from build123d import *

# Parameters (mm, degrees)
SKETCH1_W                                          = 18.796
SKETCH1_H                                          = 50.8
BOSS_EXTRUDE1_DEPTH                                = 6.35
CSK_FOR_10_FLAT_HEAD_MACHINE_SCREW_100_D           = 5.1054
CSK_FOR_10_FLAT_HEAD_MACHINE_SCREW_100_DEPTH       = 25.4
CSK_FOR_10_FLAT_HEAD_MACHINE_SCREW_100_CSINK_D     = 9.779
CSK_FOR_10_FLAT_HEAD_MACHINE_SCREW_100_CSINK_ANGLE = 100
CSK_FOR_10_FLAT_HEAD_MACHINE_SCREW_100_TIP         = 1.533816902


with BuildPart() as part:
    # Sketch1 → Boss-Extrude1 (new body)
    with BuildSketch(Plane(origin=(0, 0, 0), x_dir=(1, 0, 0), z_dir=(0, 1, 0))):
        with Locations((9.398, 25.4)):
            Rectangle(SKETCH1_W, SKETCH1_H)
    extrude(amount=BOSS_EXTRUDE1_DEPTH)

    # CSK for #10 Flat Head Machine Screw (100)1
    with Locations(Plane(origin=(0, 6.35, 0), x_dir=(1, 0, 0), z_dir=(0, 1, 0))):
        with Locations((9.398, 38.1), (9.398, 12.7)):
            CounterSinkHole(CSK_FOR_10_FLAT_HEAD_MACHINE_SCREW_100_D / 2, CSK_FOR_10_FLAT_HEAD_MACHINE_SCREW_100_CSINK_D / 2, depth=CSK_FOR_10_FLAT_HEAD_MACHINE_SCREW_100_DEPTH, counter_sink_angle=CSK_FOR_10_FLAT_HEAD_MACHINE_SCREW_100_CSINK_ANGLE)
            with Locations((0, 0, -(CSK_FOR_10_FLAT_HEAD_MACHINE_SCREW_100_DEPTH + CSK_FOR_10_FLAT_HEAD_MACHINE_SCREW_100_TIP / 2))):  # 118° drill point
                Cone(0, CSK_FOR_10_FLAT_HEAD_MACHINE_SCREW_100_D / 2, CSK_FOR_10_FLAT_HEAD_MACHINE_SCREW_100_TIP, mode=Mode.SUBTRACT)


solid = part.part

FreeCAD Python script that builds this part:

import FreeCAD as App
import Part
import Sketcher
Q = App.Units.Quantity


def add_polygon(sketch, points):
    """Adds a closed chain of lines whose ends are joined by coincident constraints."""
    first, n = sketch.GeometryCount, len(points)
    for a, b in zip(points, points[1:] + points[:1]):
        sketch.addGeometry(Part.LineSegment(App.Vector(*a, 0), App.Vector(*b, 0)), False)
    for i in range(n):
        sketch.addConstraint(Sketcher.Constraint("Coincident", first + i, 2, first + (i + 1) % n, 1))

doc = App.newDocument("Part")
body = doc.addObject("PartDesign::Body", "Body")

# Sketch on XZ plane
sketch1 = body.newObject("Sketcher::SketchObject", "Sketch")
sketch1.AttachmentSupport = (doc.getObject("XZ_Plane"), [""])
sketch1.MapMode = "FlatFace"
add_polygon(sketch1, [(0, -51), (0, 0), (19, 0), (19, -51)])  # lines 0-3
sketch1.addConstraint([
    Sketcher.Constraint("Vertical", 0),
    Sketcher.Constraint("Horizontal", 1),
    Sketcher.Constraint("Vertical", 2),
    Sketcher.Constraint("Horizontal", 3),
    Sketcher.Constraint("Coincident", 0, 2, -1, 1),
    Sketcher.Constraint("DistanceY", 0, 1, 0, 2, Q("2 in")),
    Sketcher.Constraint("DistanceX", 1, 1, 1, 2, Q("0.74 in")),
])
pad1 = body.newObject("PartDesign::Pad", "Pad")
pad1.Profile = sketch1
pad1.Length = Q("0.25 in")
pad1.Reversed = True

# Sketch on XZ plane
sketch2 = body.newObject("Sketcher::SketchObject", "Sketch001")
sketch2.AttachmentSupport = (doc.getObject("XZ_Plane"), [""])
sketch2.MapMode = "FlatFace"
sketch2.AttachmentOffset = App.Placement(App.Vector(0, 0, -0.25 * 25.4), App.Rotation())
sketch2.addGeometry([
    Part.Circle(App.Vector(9.4, -38.1, 0), App.Vector(0, 0, 1), 2.6),
    Part.Circle(App.Vector(9.4, -12.7, 0), App.Vector(0, 0, 1), 2.6),
], False)
sketch2.addConstraint([
    Sketcher.Constraint("Equal", 0, 1),
    Sketcher.Constraint("Vertical", 0, 3, 1, 3),
    Sketcher.Constraint("Diameter", 0, Q("0.201 in")),
    Sketcher.Constraint("DistanceY", 0, 3, 1, 3, Q("1 in")),
    Sketcher.Constraint("DistanceY", 0, 3, -1, 1, Q("1.5 in")),
    Sketcher.Constraint("DistanceX", -1, 1, 0, 3, Q("0.37 in")),
])
doc.recompute()
hole = body.newObject("PartDesign::Hole", "Hole")
hole.Profile = sketch2
hole.ThreadType = "None"
hole.Diameter = Q("0.201 in")
hole.DepthType = "Dimension"
hole.Depth = Q("1 in")
hole.DrillPoint = "Angled"
hole.DrillPointAngle = 118
hole.HoleCutType = "Countersink"
hole.HoleCutDiameter = Q("0.385 in")
hole.HoleCutCountersinkAngle = 100
hole.Reversed = True

doc.recompute()
